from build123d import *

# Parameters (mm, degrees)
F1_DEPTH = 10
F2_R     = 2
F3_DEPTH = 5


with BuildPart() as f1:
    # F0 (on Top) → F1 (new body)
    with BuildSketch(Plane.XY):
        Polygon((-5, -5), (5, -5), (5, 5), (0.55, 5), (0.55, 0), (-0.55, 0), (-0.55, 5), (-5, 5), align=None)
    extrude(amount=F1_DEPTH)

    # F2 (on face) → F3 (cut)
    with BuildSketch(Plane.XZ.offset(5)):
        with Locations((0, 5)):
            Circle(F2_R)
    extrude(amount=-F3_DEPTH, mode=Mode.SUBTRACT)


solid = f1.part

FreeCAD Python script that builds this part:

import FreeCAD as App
import Part
import Sketcher

V = App.Vector
Q = App.Units.Quantity

doc = App.newDocument("Part")
body = doc.addObject("PartDesign::Body", "Body")

# Sketch on XY plane
sketch1 = doc.addObject("Sketcher::SketchObject", "Sketch")
body.addObject(sketch1)
sketch1.AttachmentSupport = (doc.XY_Plane, [""])
sketch1.MapMode = "FlatFace"
sketch1.addGeometry([
    Part.LineSegment(V(-5, -5, 0), V(5, -5, 0)),  # 0
    Part.LineSegment(V(5, -5, 0), V(5, 5, 0)),  # 1
    Part.LineSegment(V(5, 5, 0), V(0.55, 5, 0)),  # 2
    Part.LineSegment(V(0.55, 5, 0), V(0.55, 0, 0)),  # 3
    Part.LineSegment(V(0.55, 0, 0), V(-0.55, 0, 0)),  # 4
    Part.LineSegment(V(-0.55, 0, 0), V(-0.55, 5, 0)),  # 5
    Part.LineSegment(V(-0.55, 5, 0), V(-5, 5, 0)),  # 6
    Part.LineSegment(V(-5, 5, 0), V(-5, -5, 0)),  # 7
], False)
sketch1.addConstraint([
    Sketcher.Constraint("Coincident", 0, 2, 1, 1),
    Sketcher.Constraint("Coincident", 1, 2, 2, 1),
    Sketcher.Constraint("Coincident", 2, 2, 3, 1),
    Sketcher.Constraint("Coincident", 3, 2, 4, 1),
    Sketcher.Constraint("Coincident", 4, 2, 5, 1),
    Sketcher.Constraint("Coincident", 5, 2, 6, 1),
    Sketcher.Constraint("Coincident", 6, 2, 7, 1),
    Sketcher.Constraint("Coincident", 7, 2, 0, 1),
    Sketcher.Constraint("Horizontal", 0),
    Sketcher.Constraint("Vertical", 1),
    Sketcher.Constraint("Horizontal", 2),
    Sketcher.Constraint("Vertical", 3),
    Sketcher.Constraint("Horizontal", 4),
    Sketcher.Constraint("Vertical", 5),
    Sketcher.Constraint("Horizontal", 6),
    Sketcher.Constraint("Vertical", 7),
    Sketcher.Constraint("Symmetric", 3, 2, 4, 2, -1, 1),
    Sketcher.Constraint("Symmetric", 0, 2, 6, 2, -1, 1),
    Sketcher.Constraint("Horizontal", 2, 2, 5, 2),
    Sketcher.Constraint("Equal", 0, 1),
    Sketcher.Constraint("DistanceX", 0, 1, 0, 2, Q("10 mm")),
    Sketcher.Constraint("DistanceX", 4, 2, 4, 1, Q("1.1 mm")),
])
pad1 = doc.addObject("PartDesign::Pad", "Pad")
body.addObject(pad1)
pad1.Profile = sketch1
pad1.Length = 10

# Sketch on XZ plane
sketch2 = doc.addObject("Sketcher::SketchObject", "Sketch001")
body.addObject(sketch2)
sketch2.AttachmentSupport = (doc.XZ_Plane, [""])
sketch2.MapMode = "FlatFace"
sketch2.AttachmentOffset = App.Placement(V(0, 0, 5), App.Rotation())
sketch2.addGeometry(Part.Circle(V(0, 5, 0), V(0, 0, 1), 2), False)
sketch2.addConstraint([
    Sketcher.Constraint("PointOnObject", 0, 3, -2),
    Sketcher.Constraint("Diameter", 0, Q("4 mm")),
    Sketcher.Constraint("DistanceY", -1, 1, 0, 3, Q("5 mm")),
])
pocket1 = doc.addObject("PartDesign::Pocket", "Pocket")
body.addObject(pocket1)
pocket1.Profile = sketch2
pocket1.Length = 5

doc.recompute()
